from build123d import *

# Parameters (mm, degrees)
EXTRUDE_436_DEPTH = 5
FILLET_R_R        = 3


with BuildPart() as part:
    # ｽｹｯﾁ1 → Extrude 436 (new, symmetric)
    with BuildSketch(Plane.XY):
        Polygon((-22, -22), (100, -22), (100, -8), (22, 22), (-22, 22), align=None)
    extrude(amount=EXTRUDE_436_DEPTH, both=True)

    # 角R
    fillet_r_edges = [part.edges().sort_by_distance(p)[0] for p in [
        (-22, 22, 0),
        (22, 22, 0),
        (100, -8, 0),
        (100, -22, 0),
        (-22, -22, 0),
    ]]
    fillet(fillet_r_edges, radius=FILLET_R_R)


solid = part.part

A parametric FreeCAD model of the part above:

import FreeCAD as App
import Part
import Sketcher
from FreeCAD import Vector
Q = App.Units.Quantity


def edges_at(feature, points):
    """Names of the edges that pass closest to the given points."""
    edges = feature.Shape.Edges
    near = lambda p: min(range(len(edges)), key=lambda i: edges[i].distToShape(Part.Vertex(*p))[0])
    return sorted({f"Edge{near(p) + 1}" for p in points})


def add_polygon(sketch, points):
    """Adds a closed chain of lines whose ends are joined by coincident constraints."""
    first, n = sketch.GeometryCount, len(points)
    for a, b in zip(points, points[1:] + points[:1]):
        sketch.addGeometry(Part.LineSegment(App.Vector(*a, 0), App.Vector(*b, 0)), False)
    for i in range(n):
        sketch.addConstraint(Sketcher.Constraint("Coincident", first + i, 2, first + (i + 1) % n, 1))

doc = App.newDocument("Part")
body = doc.addObject("PartDesign::Body", "Body")

sketch1 = doc.addObject("Sketcher::SketchObject", "Sketch")
body.addObject(sketch1)
sketch1.AttachmentSupport = (doc.XY_Plane, [""])
sketch1.MapMode = "FlatFace"
add_polygon(sketch1, [(-22, -22), (100, -22), (100, -8), (22, 22), (-22, 22)])
sketch1.addConstraint(Sketcher.Constraint("Horizontal", 0))
sketch1.addConstraint(Sketcher.Constraint("Vertical", 1))
sketch1.addConstraint(Sketcher.Constraint("Horizontal", 3))
sketch1.addConstraint(Sketcher.Constraint("Vertical", 4))
sketch1.addConstraint(Sketcher.Constraint("Symmetric", 2, 2, 4, 2, -1, 1))
sketch1.addConstraint(Sketcher.Constraint("Equal", 3, 4))
sketch1.addConstraint(Sketcher.Constraint("DistanceX", 0, 1, 0, 2, Q("122 mm")))
sketch1.addConstraint(Sketcher.Constraint("DistanceX", 3, 2, 3, 1, Q("44 mm")))
sketch1.addConstraint(Sketcher.Constraint("DistanceY", 1, 1, 1, 2, Q("14 mm")))
pad1 = doc.addObject("PartDesign::Pad", "Pad")
body.addObject(pad1)
pad1.Profile = sketch1
pad1.Length = 10
pad1.Midplane = True
doc.recompute()

fillet = doc.addObject("PartDesign::Fillet", "Fillet")
body.addObject(fillet)
fillet.Base = (pad1, edges_at(pad1, [
    (-22, 22, 0),
    (22, 22, 0),
    (100, -8, 0),
    (100, -22, 0),
    (-22, -22, 0),
]))
fillet.Radius = 3

doc.recompute()
